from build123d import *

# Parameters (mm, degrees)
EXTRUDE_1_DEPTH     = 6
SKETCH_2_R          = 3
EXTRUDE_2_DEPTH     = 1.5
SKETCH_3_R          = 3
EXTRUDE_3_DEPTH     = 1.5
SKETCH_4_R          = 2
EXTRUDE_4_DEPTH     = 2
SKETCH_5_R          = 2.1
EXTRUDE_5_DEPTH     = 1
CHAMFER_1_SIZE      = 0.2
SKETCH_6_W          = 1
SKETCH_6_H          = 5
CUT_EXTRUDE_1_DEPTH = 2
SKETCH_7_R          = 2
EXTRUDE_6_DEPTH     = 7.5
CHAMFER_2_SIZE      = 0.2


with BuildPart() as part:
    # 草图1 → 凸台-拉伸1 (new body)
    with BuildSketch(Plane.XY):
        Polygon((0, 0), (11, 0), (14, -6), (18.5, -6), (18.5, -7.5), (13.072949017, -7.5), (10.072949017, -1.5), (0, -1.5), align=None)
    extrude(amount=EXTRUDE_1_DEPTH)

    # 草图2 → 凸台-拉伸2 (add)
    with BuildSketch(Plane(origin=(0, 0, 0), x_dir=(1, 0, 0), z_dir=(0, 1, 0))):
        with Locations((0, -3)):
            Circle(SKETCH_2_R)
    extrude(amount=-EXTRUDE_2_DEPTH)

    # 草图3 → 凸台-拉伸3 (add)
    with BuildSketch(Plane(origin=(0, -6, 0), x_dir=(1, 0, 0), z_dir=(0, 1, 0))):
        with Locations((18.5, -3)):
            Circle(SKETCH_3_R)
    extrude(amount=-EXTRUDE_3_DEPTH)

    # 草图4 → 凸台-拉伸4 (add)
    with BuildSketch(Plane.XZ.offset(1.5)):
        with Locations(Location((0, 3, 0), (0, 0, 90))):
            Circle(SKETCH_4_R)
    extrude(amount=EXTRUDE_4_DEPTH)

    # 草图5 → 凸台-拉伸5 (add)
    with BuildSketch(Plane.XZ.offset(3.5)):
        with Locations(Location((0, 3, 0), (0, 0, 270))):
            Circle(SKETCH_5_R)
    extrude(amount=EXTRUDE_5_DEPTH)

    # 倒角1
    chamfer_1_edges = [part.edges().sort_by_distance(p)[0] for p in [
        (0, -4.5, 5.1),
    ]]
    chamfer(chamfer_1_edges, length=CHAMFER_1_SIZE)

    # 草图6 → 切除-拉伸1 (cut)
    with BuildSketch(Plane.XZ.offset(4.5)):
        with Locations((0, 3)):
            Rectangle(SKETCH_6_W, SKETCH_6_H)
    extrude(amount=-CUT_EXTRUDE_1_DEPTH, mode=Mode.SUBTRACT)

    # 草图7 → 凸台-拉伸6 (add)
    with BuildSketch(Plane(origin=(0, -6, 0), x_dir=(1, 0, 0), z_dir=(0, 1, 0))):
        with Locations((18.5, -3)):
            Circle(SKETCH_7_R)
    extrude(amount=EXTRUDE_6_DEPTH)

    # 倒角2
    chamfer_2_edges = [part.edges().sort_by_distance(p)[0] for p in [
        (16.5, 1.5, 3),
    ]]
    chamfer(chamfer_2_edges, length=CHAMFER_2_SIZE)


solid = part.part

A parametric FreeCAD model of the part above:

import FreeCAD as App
import Part
import Sketcher
Q = App.Units.Quantity


def edges_at(feature, points):
    """Names of the edges that pass closest to the given points."""
    edges = feature.Shape.Edges
    near = lambda p: min(range(len(edges)), key=lambda i: edges[i].distToShape(Part.Vertex(*p))[0])
    return sorted({f"Edge{near(p) + 1}" for p in points})


def add_polygon(sketch, points):
    """Adds a closed chain of lines whose ends are joined by coincident constraints."""
    first, n = sketch.GeometryCount, len(points)
    for a, b in zip(points, points[1:] + points[:1]):
        sketch.addGeometry(Part.LineSegment(App.Vector(*a, 0), App.Vector(*b, 0)), False)
    for i in range(n):
        sketch.addConstraint(Sketcher.Constraint("Coincident", first + i, 2, first + (i + 1) % n, 1))

doc = App.newDocument("Part")
body = doc.addObject("PartDesign::Body", "Body")

sketch1 = body.newObject("Sketcher::SketchObject", "Sketch")
sketch1.AttachmentSupport = (doc.getObject("XY_Plane"), [""])
sketch1.MapMode = "FlatFace"
add_polygon(sketch1, [(11, 0), (0, 0), (0, -1.5), (10.1, -1.5), (13.1, -7.5), (18.5, -7.5), (18.5, -6), (14, -6)])
sketch1.addConstraint([
    Sketcher.Constraint("Horizontal", 0),
    Sketcher.Constraint("Vertical", 1),
    Sketcher.Constraint("Horizontal", 2),
    Sketcher.Constraint("Horizontal", 4),
    Sketcher.Constraint("Vertical", 5),
    Sketcher.Constraint("Horizontal", 6),
    Sketcher.Constraint("Coincident", 0, 2, -1, 1),
    Sketcher.Constraint("Parallel", 3, 7),
    Sketcher.Constraint("Equal", 1, 5),
    Sketcher.Constraint("DistanceX", 0, 2, 0, 1, Q("11 mm")),
    Sketcher.Constraint("DistanceX", 6, 2, 6, 1, Q("4.5 mm")),
    Sketcher.Constraint("DistanceY", 1, 2, 1, 1, Q("1.5 mm")),
    Sketcher.Constraint("DistanceY", 5, 2, -1, 1, Q("6 mm")),
    Sketcher.Constraint("DistanceX", -1, 1, 6, 2, Q("14 mm")),
    Sketcher.Constraint("DistanceX", 2, 1, 2, 2, Q("10.072949 mm")),
])
pad1 = body.newObject("PartDesign::Pad", "Pad")
pad1.Profile = sketch1
pad1.Length = 6

sketch2 = body.newObject("Sketcher::SketchObject", "Sketch001")
sketch2.AttachmentSupport = (doc.getObject("XZ_Plane"), [""])
sketch2.MapMode = "FlatFace"
sketch2.addGeometry(Part.Circle(App.Vector(0, 3, 0), App.Vector(0, 0, 1), 3), False)
sketch2.addConstraint([
    Sketcher.Constraint("PointOnObject", 0, 3, -2),
    Sketcher.Constraint("Diameter", 0, Q("6 mm")),
    Sketcher.Constraint("DistanceY", -1, 1, 0, 3, Q("3 mm")),
])
pad2 = body.newObject("PartDesign::Pad", "Pad001")
pad2.Profile = sketch2
pad2.Length = 1.5

sketch3 = body.newObject("Sketcher::SketchObject", "Sketch002")
sketch3.AttachmentSupport = (doc.getObject("XZ_Plane"), [""])
sketch3.MapMode = "FlatFace"
sketch3.AttachmentOffset = App.Placement(App.Vector(0, 0, 6), App.Rotation())
sketch3.addGeometry(Part.Circle(App.Vector(18.5, 3, 0), App.Vector(0, 0, 1), 3), False)
sketch3.addConstraint([
    Sketcher.Constraint("Diameter", 0, Q("6 mm")),
    Sketcher.Constraint("DistanceY", -1, 1, 0, 3, Q("3 mm")),
    Sketcher.Constraint("DistanceX", -1, 1, 0, 3, Q("18.5 mm")),
])
pad3 = body.newObject("PartDesign::Pad", "Pad002")
pad3.Profile = sketch3
pad3.Length = 1.5

sketch4 = body.newObject("Sketcher::SketchObject", "Sketch003")
sketch4.AttachmentSupport = (doc.getObject("XZ_Plane"), [""])
sketch4.MapMode = "FlatFace"
sketch4.AttachmentOffset = App.Placement(App.Vector(0, 0, 1.5), App.Rotation())
sketch4.addGeometry(Part.Circle(App.Vector(0, 3, 0), App.Vector(0, 0, 1), 2), False)
sketch4.addConstraint([
    Sketcher.Constraint("PointOnObject", 0, 3, -2),
    Sketcher.Constraint("Diameter", 0, Q("4 mm")),
    Sketcher.Constraint("DistanceY", -1, 1, 0, 3, Q("3 mm")),
])
pad4 = body.newObject("PartDesign::Pad", "Pad003")
pad4.Profile = sketch4
pad4.Length = 2

sketch5 = body.newObject("Sketcher::SketchObject", "Sketch004")
sketch5.AttachmentSupport = (doc.getObject("XZ_Plane"), [""])
sketch5.MapMode = "FlatFace"
sketch5.AttachmentOffset = App.Placement(App.Vector(0, 0, 3.5), App.Rotation())
sketch5.addGeometry(Part.Circle(App.Vector(0, 3, 0), App.Vector(0, 0, 1), 2.1), False)
sketch5.addConstraint([
    Sketcher.Constraint("PointOnObject", 0, 3, -2),
    Sketcher.Constraint("Diameter", 0, Q("4.2 mm")),
    Sketcher.Constraint("DistanceY", -1, 1, 0, 3, Q("3 mm")),
])
pad5 = body.newObject("PartDesign::Pad", "Pad004")
pad5.Profile = sketch5
pad5.Length = 1
doc.recompute()

chamfer = body.newObject("PartDesign::Chamfer", "Chamfer")
chamfer.Base = (pad5, edges_at(pad5, [(0, -4.5, 5.1)]))
chamfer.Size = 0.2

sketch6 = body.newObject("Sketcher::SketchObject", "Sketch005")
sketch6.AttachmentSupport = (doc.getObject("XZ_Plane"), [""])
sketch6.MapMode = "FlatFace"
sketch6.AttachmentOffset = App.Placement(App.Vector(0, 0, 4.5), App.Rotation())
add_polygon(sketch6, [(-0.5, 5.5), (-0.5, 0.5), (0.5, 0.5), (0.5, 5.5)])
sketch6.addConstraint([
    Sketcher.Constraint("Vertical", 0),
    Sketcher.Constraint("Horizontal", 1),
    Sketcher.Constraint("Vertical", 2),
    Sketcher.Constraint("Horizontal", 3),
    Sketcher.Constraint("DistanceX", 1, 1, 1, 2, Q("1 mm")),
    Sketcher.Constraint("DistanceY", 0, 2, 0, 1, Q("5 mm")),
    Sketcher.Constraint("DistanceX", 0, 2, -1, 1, Q("0.5 mm")),
    Sketcher.Constraint("DistanceY", -1, 1, 0, 2, Q("0.5 mm")),
])
pocket1 = body.newObject("PartDesign::Pocket", "Pocket")
pocket1.Profile = sketch6
pocket1.Length = 2

sketch7 = body.newObject("Sketcher::SketchObject", "Sketch006")
sketch7.AttachmentSupport = (doc.getObject("XZ_Plane"), [""])
sketch7.MapMode = "FlatFace"
sketch7.AttachmentOffset = App.Placement(App.Vector(0, 0, 6), App.Rotation())
sketch7.addGeometry(Part.Circle(App.Vector(18.5, 3, 0), App.Vector(0, 0, 1), 2), False)
sketch7.addConstraint([
    Sketcher.Constraint("Diameter", 0, Q("4 mm")),
    Sketcher.Constraint("DistanceY", -1, 1, 0, 3, Q("3 mm")),
    Sketcher.Constraint("DistanceX", -1, 1, 0, 3, Q("18.5 mm")),
])
pad6 = body.newObject("PartDesign::Pad", "Pad005")
pad6.Profile = sketch7
pad6.Length = 7.5
pad6.Reversed = True
doc.recompute()

chamfer2 = body.newObject("PartDesign::Chamfer", "Chamfer001")
chamfer2.Base = (pad6, edges_at(pad6, [(16.5, 1.5, 3)]))
chamfer2.Size = 0.2

doc.recompute()
